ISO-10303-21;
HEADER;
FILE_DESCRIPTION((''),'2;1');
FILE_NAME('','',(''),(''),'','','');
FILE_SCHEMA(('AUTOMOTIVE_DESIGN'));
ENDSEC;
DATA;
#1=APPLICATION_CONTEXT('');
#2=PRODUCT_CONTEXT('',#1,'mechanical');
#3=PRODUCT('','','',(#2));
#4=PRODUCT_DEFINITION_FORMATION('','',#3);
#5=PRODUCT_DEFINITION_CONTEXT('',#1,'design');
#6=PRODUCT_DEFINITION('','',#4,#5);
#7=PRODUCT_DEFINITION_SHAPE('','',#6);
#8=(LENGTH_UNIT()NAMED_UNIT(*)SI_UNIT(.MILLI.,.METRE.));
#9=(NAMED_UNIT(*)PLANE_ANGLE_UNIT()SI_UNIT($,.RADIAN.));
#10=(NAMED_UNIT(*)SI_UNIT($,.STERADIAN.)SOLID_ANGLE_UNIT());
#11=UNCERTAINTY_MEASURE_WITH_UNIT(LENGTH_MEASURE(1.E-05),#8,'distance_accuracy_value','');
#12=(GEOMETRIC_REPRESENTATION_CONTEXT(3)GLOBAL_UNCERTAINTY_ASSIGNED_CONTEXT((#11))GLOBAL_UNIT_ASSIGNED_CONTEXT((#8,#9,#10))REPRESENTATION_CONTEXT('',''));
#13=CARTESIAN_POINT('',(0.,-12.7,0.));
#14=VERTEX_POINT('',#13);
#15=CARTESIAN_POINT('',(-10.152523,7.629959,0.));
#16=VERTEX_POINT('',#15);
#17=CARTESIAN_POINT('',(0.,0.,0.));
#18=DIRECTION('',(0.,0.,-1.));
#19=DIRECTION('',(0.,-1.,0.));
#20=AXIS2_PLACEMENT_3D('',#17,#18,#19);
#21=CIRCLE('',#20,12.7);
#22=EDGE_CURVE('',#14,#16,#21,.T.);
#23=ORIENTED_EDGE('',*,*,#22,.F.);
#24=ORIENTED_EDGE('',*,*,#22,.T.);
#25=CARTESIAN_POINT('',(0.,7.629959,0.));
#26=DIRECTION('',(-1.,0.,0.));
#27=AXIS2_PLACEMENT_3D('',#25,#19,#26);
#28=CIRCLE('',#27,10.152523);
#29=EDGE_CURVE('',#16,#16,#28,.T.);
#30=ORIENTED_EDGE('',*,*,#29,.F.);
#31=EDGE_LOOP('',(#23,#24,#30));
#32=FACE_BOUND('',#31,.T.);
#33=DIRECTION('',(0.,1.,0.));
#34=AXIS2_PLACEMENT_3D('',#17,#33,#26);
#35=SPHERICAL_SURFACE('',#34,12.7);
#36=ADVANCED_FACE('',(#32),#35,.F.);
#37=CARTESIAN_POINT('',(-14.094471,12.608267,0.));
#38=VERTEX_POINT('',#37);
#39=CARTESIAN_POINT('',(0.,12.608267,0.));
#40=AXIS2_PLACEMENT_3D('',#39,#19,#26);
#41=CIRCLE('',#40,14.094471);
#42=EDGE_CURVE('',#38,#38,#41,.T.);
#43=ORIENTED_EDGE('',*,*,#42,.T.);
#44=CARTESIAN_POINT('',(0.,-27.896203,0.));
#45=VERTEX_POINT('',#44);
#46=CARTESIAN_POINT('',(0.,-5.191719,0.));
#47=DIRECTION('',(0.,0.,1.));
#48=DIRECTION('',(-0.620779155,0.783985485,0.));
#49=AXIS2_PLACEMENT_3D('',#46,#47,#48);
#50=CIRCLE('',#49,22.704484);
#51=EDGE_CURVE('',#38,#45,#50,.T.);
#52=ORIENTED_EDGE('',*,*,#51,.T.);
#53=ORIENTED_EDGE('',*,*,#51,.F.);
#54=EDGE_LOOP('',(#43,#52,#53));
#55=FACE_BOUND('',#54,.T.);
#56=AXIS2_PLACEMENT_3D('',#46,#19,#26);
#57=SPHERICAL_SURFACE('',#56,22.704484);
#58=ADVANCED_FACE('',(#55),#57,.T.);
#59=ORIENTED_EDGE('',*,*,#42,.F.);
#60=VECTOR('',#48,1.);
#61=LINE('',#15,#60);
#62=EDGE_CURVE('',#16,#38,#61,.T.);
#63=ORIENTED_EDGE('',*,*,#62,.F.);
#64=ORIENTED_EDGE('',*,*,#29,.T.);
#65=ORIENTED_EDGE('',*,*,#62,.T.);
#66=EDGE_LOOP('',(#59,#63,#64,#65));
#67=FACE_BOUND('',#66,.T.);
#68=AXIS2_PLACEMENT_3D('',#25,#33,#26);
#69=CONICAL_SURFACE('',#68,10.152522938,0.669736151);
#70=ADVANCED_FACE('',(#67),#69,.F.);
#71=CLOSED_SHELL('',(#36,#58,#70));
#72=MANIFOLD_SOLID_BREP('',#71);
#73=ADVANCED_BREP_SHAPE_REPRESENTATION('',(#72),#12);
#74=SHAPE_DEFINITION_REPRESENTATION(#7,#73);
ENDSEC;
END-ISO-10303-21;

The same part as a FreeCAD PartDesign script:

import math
import FreeCAD as App
import Part
import Sketcher

V = App.Vector
Q = App.Units.Quantity

doc = App.newDocument("Part")
body = doc.addObject("PartDesign::Body", "Body")

# Sketch on XY plane
sketch1 = doc.addObject("Sketcher::SketchObject", "Sketch")
body.addObject(sketch1)
sketch1.AttachmentSupport = (doc.XY_Plane, [""])
sketch1.MapMode = "FlatFace"
sketch1.addGeometry(Part.ArcOfCircle(Part.Circle(V(0, 0, 0), V(0, 0, 1), 12.7), math.radians(143.073918), math.radians(270)), False)
sketch1.addGeometry(Part.LineSegment(V(-10.152523, 7.629959, 0), V(-14.094471, 12.608267, 0)), False)
sketch1.addGeometry(Part.ArcOfCircle(Part.Circle(V(0, -5.191719, 0), V(0, 0, 1), 22.704484), math.radians(128.373055), math.radians(270)), False)
sketch1.addGeometry(Part.LineSegment(V(0, -27.896203, 0), V(0, -12.7, 0)), False)
sketch1.addConstraint(Sketcher.Constraint("Coincident", 0, 1, 1, 1))
sketch1.addConstraint(Sketcher.Constraint("Coincident", 1, 2, 2, 1))
sketch1.addConstraint(Sketcher.Constraint("Coincident", 2, 2, 3, 1))
sketch1.addConstraint(Sketcher.Constraint("Coincident", 3, 2, 0, 2))
sketch1.addConstraint(Sketcher.Constraint("Vertical", 3))
sketch1.addConstraint(Sketcher.Constraint("Coincident", 0, 3, -1, 1))
sketch1.addConstraint(Sketcher.Constraint("PointOnObject", 2, 3, -2))
sketch1.addConstraint(Sketcher.Constraint("PointOnObject", 2, 2, -2))
sketch1.addConstraint(Sketcher.Constraint("Radius", 0, Q("0.5 in")))
sketch1.addConstraint(Sketcher.Constraint("Distance", 1, Q("0.25 in")))
sketch1.addConstraint(Sketcher.Constraint("Radius", 2, Q("22.704484 mm")))
sketch1.addConstraint(Sketcher.Constraint("DistanceY", 3, 1, 3, 2, Q("15.196203 mm")))
sketch1.addConstraint(Sketcher.Constraint("DistanceX", 1, 2, -1, 1, Q("14.094471 mm")))
revolution = doc.addObject("PartDesign::Revolution", "Revolution")
body.addObject(revolution)
revolution.Profile = sketch1
revolution.ReferenceAxis = (sketch1, ["V_Axis"])
revolution.Angle = 360

doc.recompute()
